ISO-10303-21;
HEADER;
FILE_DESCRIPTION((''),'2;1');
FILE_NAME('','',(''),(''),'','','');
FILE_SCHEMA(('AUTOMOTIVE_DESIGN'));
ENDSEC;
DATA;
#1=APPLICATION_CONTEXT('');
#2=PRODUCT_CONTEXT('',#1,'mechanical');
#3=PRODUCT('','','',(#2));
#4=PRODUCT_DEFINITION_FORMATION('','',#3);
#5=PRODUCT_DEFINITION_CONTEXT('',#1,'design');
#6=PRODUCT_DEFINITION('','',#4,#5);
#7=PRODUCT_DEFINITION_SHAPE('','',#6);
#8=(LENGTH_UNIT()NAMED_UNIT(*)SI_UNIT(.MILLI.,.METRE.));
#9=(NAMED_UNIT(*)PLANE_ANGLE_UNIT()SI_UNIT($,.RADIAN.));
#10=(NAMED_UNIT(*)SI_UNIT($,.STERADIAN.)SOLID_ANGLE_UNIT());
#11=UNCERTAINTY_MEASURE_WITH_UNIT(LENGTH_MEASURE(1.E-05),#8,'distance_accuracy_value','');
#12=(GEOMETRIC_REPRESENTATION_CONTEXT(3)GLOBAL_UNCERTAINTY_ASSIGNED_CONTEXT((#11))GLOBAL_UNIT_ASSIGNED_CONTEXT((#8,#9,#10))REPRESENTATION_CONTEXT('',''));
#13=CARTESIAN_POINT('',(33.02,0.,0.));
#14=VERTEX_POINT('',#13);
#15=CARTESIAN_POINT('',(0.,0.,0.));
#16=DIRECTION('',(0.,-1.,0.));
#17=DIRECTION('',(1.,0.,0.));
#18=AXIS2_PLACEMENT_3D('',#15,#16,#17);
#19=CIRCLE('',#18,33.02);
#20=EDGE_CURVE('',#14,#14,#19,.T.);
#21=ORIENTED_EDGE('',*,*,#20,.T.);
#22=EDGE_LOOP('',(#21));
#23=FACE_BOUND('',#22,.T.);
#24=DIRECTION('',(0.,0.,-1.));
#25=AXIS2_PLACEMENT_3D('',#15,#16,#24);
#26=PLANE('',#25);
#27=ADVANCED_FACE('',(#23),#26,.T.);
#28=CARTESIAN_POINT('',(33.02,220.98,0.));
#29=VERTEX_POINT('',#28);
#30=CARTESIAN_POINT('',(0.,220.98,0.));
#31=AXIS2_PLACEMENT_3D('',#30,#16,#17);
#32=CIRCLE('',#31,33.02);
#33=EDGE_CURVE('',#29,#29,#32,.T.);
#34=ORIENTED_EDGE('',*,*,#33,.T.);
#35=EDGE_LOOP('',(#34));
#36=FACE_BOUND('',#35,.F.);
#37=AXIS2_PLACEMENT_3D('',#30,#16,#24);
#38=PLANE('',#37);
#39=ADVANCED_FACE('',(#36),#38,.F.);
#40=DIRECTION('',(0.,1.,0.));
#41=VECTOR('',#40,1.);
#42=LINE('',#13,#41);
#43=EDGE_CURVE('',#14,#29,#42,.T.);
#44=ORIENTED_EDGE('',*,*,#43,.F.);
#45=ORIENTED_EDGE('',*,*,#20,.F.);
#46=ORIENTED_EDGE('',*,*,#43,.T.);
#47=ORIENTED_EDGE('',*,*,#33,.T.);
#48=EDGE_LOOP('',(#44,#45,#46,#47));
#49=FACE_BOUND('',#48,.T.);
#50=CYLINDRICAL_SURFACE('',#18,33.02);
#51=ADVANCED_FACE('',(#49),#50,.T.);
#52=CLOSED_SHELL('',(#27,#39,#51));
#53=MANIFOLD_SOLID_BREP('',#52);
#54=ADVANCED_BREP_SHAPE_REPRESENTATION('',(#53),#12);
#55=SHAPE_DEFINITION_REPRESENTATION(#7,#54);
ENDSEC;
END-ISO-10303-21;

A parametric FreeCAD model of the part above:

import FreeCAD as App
import Part
import Sketcher

V = App.Vector
Q = App.Units.Quantity

doc = App.newDocument("Part")
body = doc.addObject("PartDesign::Body", "Body")

# Sketch on XZ plane
sketch1 = body.newObject("Sketcher::SketchObject", "Sketch")
sketch1.AttachmentSupport = (doc.getObject("XZ_Plane"), [""])
sketch1.MapMode = "FlatFace"
sketch1.addGeometry(Part.Circle(V(0, 0, 0), V(0, 0, 1), 33.02), False)
sketch1.addConstraint([
    Sketcher.Constraint("Coincident", 0, 3, -1, 1),
    Sketcher.Constraint("Diameter", 0, Q("2.6 in")),
])
pad1 = body.newObject("PartDesign::Pad", "Pad")
pad1.Profile = sketch1
pad1.Length = Q("8.7 in")
pad1.Reversed = True

doc.recompute()
